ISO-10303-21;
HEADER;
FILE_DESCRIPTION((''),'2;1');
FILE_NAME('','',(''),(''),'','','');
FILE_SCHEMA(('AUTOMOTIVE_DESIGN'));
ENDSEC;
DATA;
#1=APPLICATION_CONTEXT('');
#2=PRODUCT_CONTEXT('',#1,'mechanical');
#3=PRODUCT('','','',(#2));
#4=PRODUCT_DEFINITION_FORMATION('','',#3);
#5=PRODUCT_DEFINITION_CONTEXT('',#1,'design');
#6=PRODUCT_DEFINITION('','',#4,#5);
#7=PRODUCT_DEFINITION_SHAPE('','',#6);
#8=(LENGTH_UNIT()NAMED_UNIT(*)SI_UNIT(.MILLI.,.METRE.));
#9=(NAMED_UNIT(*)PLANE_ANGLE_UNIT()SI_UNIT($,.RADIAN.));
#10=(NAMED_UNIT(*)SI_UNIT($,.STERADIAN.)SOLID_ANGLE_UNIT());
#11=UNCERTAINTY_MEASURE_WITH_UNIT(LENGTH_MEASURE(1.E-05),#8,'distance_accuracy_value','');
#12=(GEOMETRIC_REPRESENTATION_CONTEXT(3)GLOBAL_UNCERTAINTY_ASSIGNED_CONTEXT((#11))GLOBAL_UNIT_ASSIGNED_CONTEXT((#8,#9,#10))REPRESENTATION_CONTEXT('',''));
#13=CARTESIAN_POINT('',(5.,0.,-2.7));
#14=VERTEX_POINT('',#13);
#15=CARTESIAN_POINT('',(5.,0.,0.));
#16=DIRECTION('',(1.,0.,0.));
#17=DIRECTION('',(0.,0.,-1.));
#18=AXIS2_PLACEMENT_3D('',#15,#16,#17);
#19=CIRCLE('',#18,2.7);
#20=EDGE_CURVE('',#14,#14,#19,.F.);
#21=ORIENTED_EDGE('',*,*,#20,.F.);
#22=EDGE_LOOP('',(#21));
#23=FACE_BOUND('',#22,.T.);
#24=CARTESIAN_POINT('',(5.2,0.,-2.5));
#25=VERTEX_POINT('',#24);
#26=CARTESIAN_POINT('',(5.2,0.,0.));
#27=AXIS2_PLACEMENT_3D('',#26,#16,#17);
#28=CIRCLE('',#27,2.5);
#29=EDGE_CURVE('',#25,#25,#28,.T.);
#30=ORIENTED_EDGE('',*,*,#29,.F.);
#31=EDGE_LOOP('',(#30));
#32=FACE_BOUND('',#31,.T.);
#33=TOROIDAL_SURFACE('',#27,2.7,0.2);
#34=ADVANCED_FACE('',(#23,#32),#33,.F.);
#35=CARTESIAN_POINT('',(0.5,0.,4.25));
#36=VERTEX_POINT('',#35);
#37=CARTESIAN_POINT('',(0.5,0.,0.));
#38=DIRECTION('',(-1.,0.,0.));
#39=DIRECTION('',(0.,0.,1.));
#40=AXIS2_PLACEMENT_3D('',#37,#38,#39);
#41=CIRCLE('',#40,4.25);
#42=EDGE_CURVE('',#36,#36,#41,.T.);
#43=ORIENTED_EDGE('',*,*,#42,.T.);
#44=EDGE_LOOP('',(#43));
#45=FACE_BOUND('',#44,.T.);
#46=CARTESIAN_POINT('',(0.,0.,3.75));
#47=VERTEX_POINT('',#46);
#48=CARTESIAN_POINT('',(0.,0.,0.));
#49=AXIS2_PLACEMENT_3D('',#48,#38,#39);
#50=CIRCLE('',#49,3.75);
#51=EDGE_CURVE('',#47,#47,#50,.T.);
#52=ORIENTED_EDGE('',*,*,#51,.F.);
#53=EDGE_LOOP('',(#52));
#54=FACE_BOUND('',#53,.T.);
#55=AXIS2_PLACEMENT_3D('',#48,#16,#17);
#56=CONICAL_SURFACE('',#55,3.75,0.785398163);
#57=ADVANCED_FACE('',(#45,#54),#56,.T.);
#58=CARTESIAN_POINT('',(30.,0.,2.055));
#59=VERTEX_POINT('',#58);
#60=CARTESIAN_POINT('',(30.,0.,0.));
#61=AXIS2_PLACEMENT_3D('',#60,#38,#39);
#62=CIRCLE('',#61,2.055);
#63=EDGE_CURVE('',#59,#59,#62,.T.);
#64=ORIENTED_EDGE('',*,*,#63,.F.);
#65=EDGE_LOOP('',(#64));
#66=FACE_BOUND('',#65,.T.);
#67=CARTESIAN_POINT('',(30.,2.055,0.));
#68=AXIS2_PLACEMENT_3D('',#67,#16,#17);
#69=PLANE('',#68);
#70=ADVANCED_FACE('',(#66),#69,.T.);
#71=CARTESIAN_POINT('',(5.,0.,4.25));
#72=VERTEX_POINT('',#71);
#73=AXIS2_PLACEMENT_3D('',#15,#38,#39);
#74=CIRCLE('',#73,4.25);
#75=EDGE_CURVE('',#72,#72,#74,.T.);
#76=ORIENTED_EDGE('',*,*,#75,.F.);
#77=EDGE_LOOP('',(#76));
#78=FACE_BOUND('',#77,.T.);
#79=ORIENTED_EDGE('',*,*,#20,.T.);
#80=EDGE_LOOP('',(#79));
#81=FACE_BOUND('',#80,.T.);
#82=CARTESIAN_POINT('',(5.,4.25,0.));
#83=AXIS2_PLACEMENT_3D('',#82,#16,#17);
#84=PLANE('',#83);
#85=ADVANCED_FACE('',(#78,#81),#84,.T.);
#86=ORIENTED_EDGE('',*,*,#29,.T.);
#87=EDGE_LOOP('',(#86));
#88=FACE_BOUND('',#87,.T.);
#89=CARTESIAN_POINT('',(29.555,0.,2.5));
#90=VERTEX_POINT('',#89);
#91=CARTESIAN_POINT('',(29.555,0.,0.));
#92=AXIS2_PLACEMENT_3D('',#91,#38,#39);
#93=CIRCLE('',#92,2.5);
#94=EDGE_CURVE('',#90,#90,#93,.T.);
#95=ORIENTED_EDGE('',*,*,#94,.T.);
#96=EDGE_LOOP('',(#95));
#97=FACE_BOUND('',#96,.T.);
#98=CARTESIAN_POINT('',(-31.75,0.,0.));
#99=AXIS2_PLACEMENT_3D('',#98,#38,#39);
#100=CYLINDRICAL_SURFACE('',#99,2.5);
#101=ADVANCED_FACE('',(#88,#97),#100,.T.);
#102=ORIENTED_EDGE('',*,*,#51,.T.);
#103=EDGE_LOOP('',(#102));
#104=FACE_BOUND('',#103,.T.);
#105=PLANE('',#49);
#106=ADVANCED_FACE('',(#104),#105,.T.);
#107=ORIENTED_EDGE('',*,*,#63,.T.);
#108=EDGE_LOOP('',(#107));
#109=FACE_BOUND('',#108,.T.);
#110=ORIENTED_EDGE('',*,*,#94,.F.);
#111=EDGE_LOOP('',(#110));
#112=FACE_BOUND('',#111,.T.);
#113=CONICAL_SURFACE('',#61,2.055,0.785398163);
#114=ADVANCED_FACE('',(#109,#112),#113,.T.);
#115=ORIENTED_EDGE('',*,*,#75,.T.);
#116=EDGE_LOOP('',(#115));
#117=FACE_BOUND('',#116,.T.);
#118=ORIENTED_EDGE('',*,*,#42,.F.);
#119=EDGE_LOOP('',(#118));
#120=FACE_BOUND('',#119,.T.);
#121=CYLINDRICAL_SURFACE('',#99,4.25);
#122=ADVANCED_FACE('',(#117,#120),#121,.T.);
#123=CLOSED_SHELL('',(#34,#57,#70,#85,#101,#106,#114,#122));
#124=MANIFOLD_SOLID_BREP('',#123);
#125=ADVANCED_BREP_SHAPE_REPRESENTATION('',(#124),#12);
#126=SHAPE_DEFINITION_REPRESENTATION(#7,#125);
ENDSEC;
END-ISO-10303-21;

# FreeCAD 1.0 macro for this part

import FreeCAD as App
import Part
import Sketcher
Q = App.Units.Quantity


def edges_at(feature, points):
    """Names of the edges that pass closest to the given points."""
    edges = feature.Shape.Edges
    near = lambda p: min(range(len(edges)), key=lambda i: edges[i].distToShape(Part.Vertex(*p))[0])
    return sorted({f"Edge{near(p) + 1}" for p in points})

doc = App.newDocument("Part")
params = doc.addObject("Spreadsheet::Sheet", "Params")
for row, (alias, value) in enumerate([
    ("sketch1_width", "30 mm"),
    ("sketch1_width2", "4.5 mm"),
    ("sketch1_height", "3.75 mm"),
    ("sketch1_height2", "1.75 mm"),
    ("revolution_angle", "360 deg"),
    ("fillet_radius", "0.2 mm"),
], start=1):
    params.set(f"A{row}", alias)
    params.set(f"B{row}", "=" + value)
    params.setAlias(f"B{row}", alias)

body = doc.addObject("PartDesign::Body", "Body")

sketch1 = doc.addObject("Sketcher::SketchObject", "Sketch")
body.addObject(sketch1)
sketch1.AttachmentSupport = (doc.XY_Plane, [""])
sketch1.MapMode = "FlatFace"
sketch1.addGeometry([
    Part.LineSegment(App.Vector(0, 3.8, 0), App.Vector(0, 0, 0)),
    Part.LineSegment(App.Vector(0, 0, 0), App.Vector(30, 0, 0)),
    Part.LineSegment(App.Vector(30, 0, 0), App.Vector(30, 2.1, 0)),
    Part.LineSegment(App.Vector(30, 2.1, 0), App.Vector(29.6, 2.5, 0)),
    Part.LineSegment(App.Vector(29.6, 2.5, 0), App.Vector(5, 2.5, 0)),
    Part.LineSegment(App.Vector(5, 2.5, 0), App.Vector(5, 4.2, 0)),
    Part.LineSegment(App.Vector(5, 4.2, 0), App.Vector(0.5, 4.2, 0)),
    Part.LineSegment(App.Vector(0.5, 4.2, 0), App.Vector(0, 3.8, 0)),
], False)
sketch1.addConstraint([
    Sketcher.Constraint("Coincident", 0, 2, 1, 1),
    Sketcher.Constraint("Coincident", 1, 2, 2, 1),
    Sketcher.Constraint("Coincident", 2, 2, 3, 1),
    Sketcher.Constraint("Coincident", 3, 2, 4, 1),
    Sketcher.Constraint("Coincident", 4, 2, 5, 1),
    Sketcher.Constraint("Coincident", 5, 2, 6, 1),
    Sketcher.Constraint("Coincident", 6, 2, 7, 1),
    Sketcher.Constraint("Coincident", 7, 2, 0, 1),
    Sketcher.Constraint("Vertical", 0),
    Sketcher.Constraint("Horizontal", 1),
    Sketcher.Constraint("Vertical", 2),
    Sketcher.Constraint("Horizontal", 4),
    Sketcher.Constraint("Vertical", 5),
    Sketcher.Constraint("Horizontal", 6),
    Sketcher.Constraint("Coincident", 0, 2, -1, 1),
    Sketcher.Constraint("Perpendicular", 3, 7),
    Sketcher.Constraint("DistanceX", 1, 1, 1, 2, 30.0),
    Sketcher.Constraint("Angle", 3, Q("135 deg")),
    Sketcher.Constraint("DistanceX", 6, 2, 6, 1, 4.5),
    Sketcher.Constraint("DistanceX", -1, 1, 4, 2, 5.0),
    Sketcher.Constraint("DistanceY", 0, 2, 0, 1, 3.75),
    Sketcher.Constraint("DistanceY", 5, 1, 5, 2, 1.75),
    Sketcher.Constraint("DistanceX", 4, 2, 4, 1, 24.555),
])
sketch1.setExpression("Constraints[16]", "Params.sketch1_width")
sketch1.setExpression("Constraints[18]", "Params.sketch1_width2")
sketch1.setExpression("Constraints[20]", "Params.sketch1_height")
sketch1.setExpression("Constraints[21]", "Params.sketch1_height2")
revolution = doc.addObject("PartDesign::Revolution", "Revolution")
body.addObject(revolution)
revolution.Profile = sketch1
revolution.ReferenceAxis = (sketch1, ["H_Axis"])
revolution.setExpression("Angle", "Params.revolution_angle")
doc.recompute()

fillet = doc.addObject("PartDesign::Fillet", "Fillet")
body.addObject(fillet)
fillet.Base = (revolution, edges_at(revolution, [(5, 0, -2.5)]))
fillet.setExpression("Radius", "Params.fillet_radius")

doc.recompute()
